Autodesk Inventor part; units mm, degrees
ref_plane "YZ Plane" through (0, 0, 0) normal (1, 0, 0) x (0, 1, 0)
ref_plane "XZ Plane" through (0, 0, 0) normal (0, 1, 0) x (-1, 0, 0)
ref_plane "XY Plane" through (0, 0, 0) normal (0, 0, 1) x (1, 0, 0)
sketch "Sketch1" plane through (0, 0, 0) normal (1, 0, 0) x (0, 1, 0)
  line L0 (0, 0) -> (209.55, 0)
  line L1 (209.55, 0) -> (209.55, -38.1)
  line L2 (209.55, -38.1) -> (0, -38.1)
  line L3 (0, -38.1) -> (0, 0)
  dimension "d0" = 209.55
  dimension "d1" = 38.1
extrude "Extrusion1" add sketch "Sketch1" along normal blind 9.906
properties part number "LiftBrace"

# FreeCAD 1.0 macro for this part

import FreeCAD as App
import Part
import Sketcher
Q = App.Units.Quantity


def add_polygon(sketch, points):
    """Adds a closed chain of lines whose ends are joined by coincident constraints."""
    first, n = sketch.GeometryCount, len(points)
    for a, b in zip(points, points[1:] + points[:1]):
        sketch.addGeometry(Part.LineSegment(App.Vector(*a, 0), App.Vector(*b, 0)), False)
    for i in range(n):
        sketch.addConstraint(Sketcher.Constraint("Coincident", first + i, 2, first + (i + 1) % n, 1))

doc = App.newDocument("Part")
params = doc.addObject("Spreadsheet::Sheet", "Params")
for row, (alias, value) in enumerate([
    ("sketch1_height", "1.5 in"),
    ("sketch1_width", "8.25 in"),
    ("pad1_length", "0.39 in"),
], start=1):
    params.set(f"A{row}", alias)
    params.set(f"B{row}", "=" + value)
    params.setAlias(f"B{row}", alias)

body = doc.addObject("PartDesign::Body", "Body")

sketch1 = doc.addObject("Sketcher::SketchObject", "Sketch")
body.addObject(sketch1)
sketch1.AttachmentSupport = (doc.YZ_Plane, [""])
sketch1.MapMode = "FlatFace"
add_polygon(sketch1, [(209.55, 0), (0, 0), (0, -38.1), (209.55, -38.1)])
sketch1.addConstraint([
    Sketcher.Constraint("Horizontal", 0),
    Sketcher.Constraint("Vertical", 1),
    Sketcher.Constraint("Horizontal", 2),
    Sketcher.Constraint("Vertical", 3),
    Sketcher.Constraint("Coincident", 0, 2, -1, 1),
    Sketcher.Constraint("DistanceY", 1, 2, 1, 1, Q("1.5 in")),
    Sketcher.Constraint("DistanceX", 0, 2, 0, 1, Q("8.25 in")),
])
sketch1.setExpression("Constraints[9]", "Params.sketch1_height")
sketch1.setExpression("Constraints[10]", "Params.sketch1_width")
pad1 = doc.addObject("PartDesign::Pad", "Pad")
body.addObject(pad1)
pad1.Profile = sketch1
pad1.setExpression("Length", "Params.pad1_length")

doc.recompute()
